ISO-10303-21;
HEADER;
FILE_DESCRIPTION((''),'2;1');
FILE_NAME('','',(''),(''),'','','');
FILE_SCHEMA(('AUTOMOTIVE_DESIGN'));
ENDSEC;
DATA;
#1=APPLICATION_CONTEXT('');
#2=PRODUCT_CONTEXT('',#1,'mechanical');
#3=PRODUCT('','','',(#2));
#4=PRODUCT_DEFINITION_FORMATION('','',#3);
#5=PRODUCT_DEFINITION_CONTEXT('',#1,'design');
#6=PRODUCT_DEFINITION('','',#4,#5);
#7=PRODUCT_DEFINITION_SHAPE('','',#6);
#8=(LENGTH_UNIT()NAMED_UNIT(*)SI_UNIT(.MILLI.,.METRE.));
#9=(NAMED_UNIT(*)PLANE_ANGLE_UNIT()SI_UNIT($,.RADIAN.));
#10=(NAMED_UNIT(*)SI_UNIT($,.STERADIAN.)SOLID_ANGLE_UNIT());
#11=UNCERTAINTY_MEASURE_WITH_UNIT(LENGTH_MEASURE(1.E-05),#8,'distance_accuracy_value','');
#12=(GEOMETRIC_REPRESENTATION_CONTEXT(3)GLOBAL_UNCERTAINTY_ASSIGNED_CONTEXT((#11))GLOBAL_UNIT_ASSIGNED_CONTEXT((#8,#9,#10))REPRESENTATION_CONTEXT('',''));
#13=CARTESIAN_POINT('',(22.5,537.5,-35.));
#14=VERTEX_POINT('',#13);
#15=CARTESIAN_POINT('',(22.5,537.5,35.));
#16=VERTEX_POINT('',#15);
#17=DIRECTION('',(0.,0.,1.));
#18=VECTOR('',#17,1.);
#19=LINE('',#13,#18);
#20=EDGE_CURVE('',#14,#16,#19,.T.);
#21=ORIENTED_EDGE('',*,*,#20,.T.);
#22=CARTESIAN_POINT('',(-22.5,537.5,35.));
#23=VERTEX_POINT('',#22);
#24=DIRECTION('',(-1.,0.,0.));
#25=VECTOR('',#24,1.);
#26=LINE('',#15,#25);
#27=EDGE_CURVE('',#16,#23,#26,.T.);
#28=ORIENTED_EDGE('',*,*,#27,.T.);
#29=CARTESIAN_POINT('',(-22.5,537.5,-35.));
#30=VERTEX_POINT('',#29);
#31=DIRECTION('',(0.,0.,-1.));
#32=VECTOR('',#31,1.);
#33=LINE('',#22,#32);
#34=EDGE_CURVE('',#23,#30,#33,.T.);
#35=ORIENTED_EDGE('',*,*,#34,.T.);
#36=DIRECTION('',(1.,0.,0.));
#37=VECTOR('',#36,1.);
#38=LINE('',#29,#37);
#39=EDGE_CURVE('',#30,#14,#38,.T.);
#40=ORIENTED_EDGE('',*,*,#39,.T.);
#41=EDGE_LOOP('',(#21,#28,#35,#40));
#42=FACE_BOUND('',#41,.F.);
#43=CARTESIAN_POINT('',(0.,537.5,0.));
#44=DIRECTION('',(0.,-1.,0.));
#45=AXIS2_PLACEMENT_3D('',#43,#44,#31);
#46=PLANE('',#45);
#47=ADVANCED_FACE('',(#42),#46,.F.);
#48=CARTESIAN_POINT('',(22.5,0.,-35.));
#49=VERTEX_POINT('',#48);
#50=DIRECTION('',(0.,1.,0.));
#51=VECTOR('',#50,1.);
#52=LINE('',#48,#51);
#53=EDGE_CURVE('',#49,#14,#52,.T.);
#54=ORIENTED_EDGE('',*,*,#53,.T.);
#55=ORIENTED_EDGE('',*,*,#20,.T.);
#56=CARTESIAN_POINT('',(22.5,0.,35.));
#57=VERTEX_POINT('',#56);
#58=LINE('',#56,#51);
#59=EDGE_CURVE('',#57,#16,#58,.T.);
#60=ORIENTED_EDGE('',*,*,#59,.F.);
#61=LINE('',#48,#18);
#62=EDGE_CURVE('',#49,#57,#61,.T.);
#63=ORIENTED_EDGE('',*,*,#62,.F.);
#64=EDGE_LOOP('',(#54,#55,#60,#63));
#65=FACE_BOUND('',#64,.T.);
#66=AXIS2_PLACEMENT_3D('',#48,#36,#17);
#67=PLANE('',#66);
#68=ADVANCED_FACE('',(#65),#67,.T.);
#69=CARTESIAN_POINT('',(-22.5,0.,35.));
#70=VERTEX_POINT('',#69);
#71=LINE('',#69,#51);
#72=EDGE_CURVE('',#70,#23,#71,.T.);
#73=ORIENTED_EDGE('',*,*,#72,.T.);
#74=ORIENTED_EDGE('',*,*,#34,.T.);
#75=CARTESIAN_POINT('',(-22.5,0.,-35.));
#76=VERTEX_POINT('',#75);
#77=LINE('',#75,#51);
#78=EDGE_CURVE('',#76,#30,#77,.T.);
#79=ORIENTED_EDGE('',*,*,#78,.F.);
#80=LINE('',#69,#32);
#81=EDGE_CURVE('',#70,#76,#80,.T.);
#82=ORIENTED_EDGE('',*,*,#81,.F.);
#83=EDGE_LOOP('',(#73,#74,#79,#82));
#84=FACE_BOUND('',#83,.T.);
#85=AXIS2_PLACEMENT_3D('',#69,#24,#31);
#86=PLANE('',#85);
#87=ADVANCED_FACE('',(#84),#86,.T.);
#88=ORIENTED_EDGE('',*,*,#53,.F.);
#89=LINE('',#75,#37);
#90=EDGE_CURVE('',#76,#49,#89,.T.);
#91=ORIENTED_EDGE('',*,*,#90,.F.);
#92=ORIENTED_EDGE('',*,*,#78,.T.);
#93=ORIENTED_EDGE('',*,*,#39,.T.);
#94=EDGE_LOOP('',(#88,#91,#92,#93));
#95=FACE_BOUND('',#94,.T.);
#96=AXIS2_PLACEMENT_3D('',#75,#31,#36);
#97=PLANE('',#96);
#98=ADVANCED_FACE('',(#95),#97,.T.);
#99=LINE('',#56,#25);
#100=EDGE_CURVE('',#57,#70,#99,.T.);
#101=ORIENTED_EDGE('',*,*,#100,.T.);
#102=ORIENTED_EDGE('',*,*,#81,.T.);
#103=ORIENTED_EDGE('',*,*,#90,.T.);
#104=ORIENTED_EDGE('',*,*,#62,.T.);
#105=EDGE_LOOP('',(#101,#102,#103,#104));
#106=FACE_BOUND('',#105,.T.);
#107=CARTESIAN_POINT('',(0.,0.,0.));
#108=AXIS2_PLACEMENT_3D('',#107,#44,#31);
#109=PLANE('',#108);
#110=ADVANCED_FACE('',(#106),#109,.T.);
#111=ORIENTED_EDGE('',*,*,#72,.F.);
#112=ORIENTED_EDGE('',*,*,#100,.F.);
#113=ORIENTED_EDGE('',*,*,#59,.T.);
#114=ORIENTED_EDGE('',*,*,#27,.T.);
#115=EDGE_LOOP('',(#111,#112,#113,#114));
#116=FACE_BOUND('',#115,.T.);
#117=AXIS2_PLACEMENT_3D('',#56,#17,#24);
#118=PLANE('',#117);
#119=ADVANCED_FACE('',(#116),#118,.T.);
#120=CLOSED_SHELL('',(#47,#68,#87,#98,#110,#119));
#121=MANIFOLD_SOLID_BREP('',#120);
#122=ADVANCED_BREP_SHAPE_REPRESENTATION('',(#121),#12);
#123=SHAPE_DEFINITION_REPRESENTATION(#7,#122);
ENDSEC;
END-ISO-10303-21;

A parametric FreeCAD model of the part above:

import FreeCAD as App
import Part
import Sketcher

V = App.Vector
Q = App.Units.Quantity


def add_polygon(sketch, points):
    """Adds a closed chain of lines whose ends are joined by coincident constraints."""
    first, n = sketch.GeometryCount, len(points)
    for a, b in zip(points, points[1:] + points[:1]):
        sketch.addGeometry(Part.LineSegment(App.Vector(*a, 0), App.Vector(*b, 0)), False)
    for i in range(n):
        sketch.addConstraint(Sketcher.Constraint("Coincident", first + i, 2, first + (i + 1) % n, 1))

doc = App.newDocument("Part")
body = doc.addObject("PartDesign::Body", "Body")

sketch1 = doc.addObject("Sketcher::SketchObject", "Sketch")
body.addObject(sketch1)
sketch1.AttachmentSupport = (doc.XZ_Plane, [""])
sketch1.MapMode = "FlatFace"
add_polygon(sketch1, [(-22.5, 35), (-22.5, -35), (22.5, -35), (22.5, 35)])
sketch1.addConstraint([
    Sketcher.Constraint("Vertical", 0),
    Sketcher.Constraint("Horizontal", 1),
    Sketcher.Constraint("Vertical", 2),
    Sketcher.Constraint("Horizontal", 3),
    Sketcher.Constraint("Symmetric", 0, 2, 2, 2, -1, 1),
    Sketcher.Constraint("DistanceX", 1, 1, 1, 2, Q("45 mm")),
    Sketcher.Constraint("DistanceY", 0, 2, 0, 1, Q("70 mm")),
])
pad1 = doc.addObject("PartDesign::Pad", "Pad")
body.addObject(pad1)
pad1.Profile = sketch1
pad1.Length = 537.5
pad1.Reversed = True

doc.recompute()
